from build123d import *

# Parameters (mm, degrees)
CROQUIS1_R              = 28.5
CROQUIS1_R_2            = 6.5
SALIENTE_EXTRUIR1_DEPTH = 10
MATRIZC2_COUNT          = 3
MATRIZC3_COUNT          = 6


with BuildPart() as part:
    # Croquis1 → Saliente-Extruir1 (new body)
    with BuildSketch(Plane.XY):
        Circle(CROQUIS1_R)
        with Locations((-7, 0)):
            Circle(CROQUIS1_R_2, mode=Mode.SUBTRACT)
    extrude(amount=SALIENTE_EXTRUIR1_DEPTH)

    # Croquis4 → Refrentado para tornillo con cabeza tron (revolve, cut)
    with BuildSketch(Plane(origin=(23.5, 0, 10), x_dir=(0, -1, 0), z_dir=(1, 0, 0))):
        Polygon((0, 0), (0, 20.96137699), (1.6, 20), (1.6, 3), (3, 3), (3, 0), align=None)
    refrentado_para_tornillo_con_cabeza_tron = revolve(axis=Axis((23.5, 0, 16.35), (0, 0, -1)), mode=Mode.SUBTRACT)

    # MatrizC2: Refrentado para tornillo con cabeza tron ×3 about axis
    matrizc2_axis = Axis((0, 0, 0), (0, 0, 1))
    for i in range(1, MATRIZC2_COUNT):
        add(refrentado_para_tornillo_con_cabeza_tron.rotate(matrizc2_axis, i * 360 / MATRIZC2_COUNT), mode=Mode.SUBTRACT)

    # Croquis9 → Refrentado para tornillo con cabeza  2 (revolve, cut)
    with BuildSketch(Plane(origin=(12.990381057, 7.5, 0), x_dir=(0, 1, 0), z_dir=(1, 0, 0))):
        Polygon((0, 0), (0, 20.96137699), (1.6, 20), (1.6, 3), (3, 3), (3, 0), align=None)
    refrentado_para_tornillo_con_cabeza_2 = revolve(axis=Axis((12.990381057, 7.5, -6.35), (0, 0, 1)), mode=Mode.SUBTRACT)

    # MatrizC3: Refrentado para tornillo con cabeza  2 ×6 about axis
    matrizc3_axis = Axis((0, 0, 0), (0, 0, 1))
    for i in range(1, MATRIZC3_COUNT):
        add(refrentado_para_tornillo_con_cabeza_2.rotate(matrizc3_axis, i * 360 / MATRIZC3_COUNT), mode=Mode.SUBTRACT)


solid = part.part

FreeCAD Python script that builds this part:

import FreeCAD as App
import Part
import Sketcher

V = App.Vector
Q = App.Units.Quantity


def add_polygon(sketch, points):
    """Adds a closed chain of lines whose ends are joined by coincident constraints."""
    first, n = sketch.GeometryCount, len(points)
    for a, b in zip(points, points[1:] + points[:1]):
        sketch.addGeometry(Part.LineSegment(App.Vector(*a, 0), App.Vector(*b, 0)), False)
    for i in range(n):
        sketch.addConstraint(Sketcher.Constraint("Coincident", first + i, 2, first + (i + 1) % n, 1))

doc = App.newDocument("Part")
body = doc.addObject("PartDesign::Body", "Body")

# Sketch on XY plane
sketch1 = doc.addObject("Sketcher::SketchObject", "Sketch")
body.addObject(sketch1)
sketch1.AttachmentSupport = (doc.XY_Plane, [""])
sketch1.MapMode = "FlatFace"
sketch1.addGeometry([
    Part.Circle(V(0, 0, 0), V(0, 0, 1), 28.5),
    Part.Circle(V(-7, 0, 0), V(0, 0, 1), 6.5),
], False)
sketch1.addConstraint([
    Sketcher.Constraint("Coincident", 0, 3, -1, 1),
    Sketcher.Constraint("PointOnObject", 1, 3, -1),
    Sketcher.Constraint("Diameter", 0, Q("57 mm")),
    Sketcher.Constraint("Diameter", 1, Q("13 mm")),
    Sketcher.Constraint("DistanceX", 1, 3, -1, 1, Q("7 mm")),
])
pad1 = doc.addObject("PartDesign::Pad", "Pad")
body.addObject(pad1)
pad1.Profile = sketch1
pad1.Length = 10

# Sketch on YZ plane
sketch2 = doc.addObject("Sketcher::SketchObject", "Sketch001")
body.addObject(sketch2)
sketch2.AttachmentSupport = (doc.YZ_Plane, [""])
sketch2.MapMode = "FlatFace"
sketch2.AttachmentOffset = App.Placement(V(0, 0, 23.5), App.Rotation())
add_polygon(sketch2, [(0, -10.961377), (0, 10), (-3, 10), (-3, 7), (-1.6, 7), (-1.6, -10)])  # lines 0-5
sketch2.addConstraint([
    Sketcher.Constraint("Vertical", 0),
    Sketcher.Constraint("Horizontal", 1),
    Sketcher.Constraint("Vertical", 2),
    Sketcher.Constraint("Horizontal", 3),
    Sketcher.Constraint("Vertical", 4),
    Sketcher.Constraint("PointOnObject", 0, 2, -2),
    Sketcher.Constraint("Equal", 1, 2),
    Sketcher.Constraint("DistanceX", 1, 2, 1, 1, Q("3 mm")),
    Sketcher.Constraint("DistanceY", 4, 2, 4, 1, Q("17 mm")),
    Sketcher.Constraint("Angle", 5, Q("-31 deg")),
    Sketcher.Constraint("DistanceX", 3, 1, 3, 2, Q("1.4 mm")),
    Sketcher.Constraint("DistanceY", -1, 1, 0, 2, Q("10 mm")),
])
groove = doc.addObject("PartDesign::Groove", "Groove")
body.addObject(groove)
groove.Profile = sketch2
groove.ReferenceAxis = (sketch2, ["V_Axis"])
groove.Angle = 360
doc.recompute()

polarpattern = doc.addObject("PartDesign::PolarPattern", "PolarPattern")
body.addObject(polarpattern)
polarpattern.Originals = [groove]
polarpattern.Axis = (doc.Z_Axis, [""])
polarpattern.Angle = 360
polarpattern.Occurrences = 3
body.Tip = polarpattern

# Sketch on YZ plane
sketch3 = doc.addObject("Sketcher::SketchObject", "Sketch002")
body.addObject(sketch3)
sketch3.AttachmentSupport = (doc.YZ_Plane, [""])
sketch3.MapMode = "FlatFace"
sketch3.AttachmentOffset = App.Placement(V(0, 0, 12.990381), App.Rotation())
add_polygon(sketch3, [(7.5, 20.961377), (7.5, 0), (10.5, 0), (10.5, 3), (9.1, 3), (9.1, 20)])  # lines 0-5
sketch3.addGeometry(Part.LineSegment(V(7.5, 0, 0), V(7.5, 20.961377, 0)), True)  # axis
sketch3.addConstraint([
    Sketcher.Constraint("Vertical", 0),
    Sketcher.Constraint("Horizontal", 1),
    Sketcher.Constraint("Vertical", 2),
    Sketcher.Constraint("Horizontal", 3),
    Sketcher.Constraint("Vertical", 4),
    Sketcher.Constraint("Vertical", 6),
    Sketcher.Constraint("Coincident", 6, 1, 0, 2),
    Sketcher.Constraint("PointOnObject", 0, 2, -1),
    Sketcher.Constraint("Equal", 1, 2),
    Sketcher.Constraint("Equal", 0, 6),
    Sketcher.Constraint("DistanceX", 1, 1, 1, 2, Q("3 mm")),
    Sketcher.Constraint("DistanceY", 4, 1, 4, 2, Q("17 mm")),
    Sketcher.Constraint("Angle", 5, Q("149 deg")),
    Sketcher.Constraint("DistanceX", 3, 2, 3, 1, Q("1.4 mm")),
    Sketcher.Constraint("DistanceX", -1, 1, 0, 2, Q("7.5 mm")),
])
groove2 = doc.addObject("PartDesign::Groove", "Groove001")
body.addObject(groove2)
groove2.Profile = sketch3
groove2.ReferenceAxis = (sketch3, ["Axis0"])
groove2.Angle = 360
doc.recompute()

polarpattern2 = doc.addObject("PartDesign::PolarPattern", "PolarPattern001")
body.addObject(polarpattern2)
polarpattern2.Originals = [groove2]
polarpattern2.Axis = (doc.Z_Axis, [""])
polarpattern2.Angle = 360
polarpattern2.Occurrences = 6
body.Tip = polarpattern2

doc.recompute()
